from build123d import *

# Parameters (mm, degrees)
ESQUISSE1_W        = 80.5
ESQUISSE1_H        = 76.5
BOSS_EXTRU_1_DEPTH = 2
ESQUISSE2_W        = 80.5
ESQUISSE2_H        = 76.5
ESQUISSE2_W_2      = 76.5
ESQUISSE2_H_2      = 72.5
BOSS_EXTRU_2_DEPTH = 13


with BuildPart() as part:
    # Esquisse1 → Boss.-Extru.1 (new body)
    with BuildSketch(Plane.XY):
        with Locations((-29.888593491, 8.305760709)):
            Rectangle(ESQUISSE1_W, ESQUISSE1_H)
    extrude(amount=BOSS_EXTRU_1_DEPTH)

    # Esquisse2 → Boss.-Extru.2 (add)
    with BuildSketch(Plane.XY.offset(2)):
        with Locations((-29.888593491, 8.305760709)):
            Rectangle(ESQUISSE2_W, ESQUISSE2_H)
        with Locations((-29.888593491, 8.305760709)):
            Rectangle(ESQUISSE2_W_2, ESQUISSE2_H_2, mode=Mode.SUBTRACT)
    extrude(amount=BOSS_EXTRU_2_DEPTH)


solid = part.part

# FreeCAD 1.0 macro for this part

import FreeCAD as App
import Part
import Sketcher
from FreeCAD import Vector
Q = App.Units.Quantity


def add_polygon(sketch, points):
    """Adds a closed chain of lines whose ends are joined by coincident constraints."""
    first, n = sketch.GeometryCount, len(points)
    for a, b in zip(points, points[1:] + points[:1]):
        sketch.addGeometry(Part.LineSegment(App.Vector(*a, 0), App.Vector(*b, 0)), False)
    for i in range(n):
        sketch.addConstraint(Sketcher.Constraint("Coincident", first + i, 2, first + (i + 1) % n, 1))

doc = App.newDocument("Part")
body = doc.addObject("PartDesign::Body", "Body")

# Sketch on XY plane
sketch1 = body.newObject("Sketcher::SketchObject", "Sketch")
sketch1.AttachmentSupport = (doc.getObject("XY_Plane"), [""])
sketch1.MapMode = "FlatFace"
add_polygon(sketch1, [(-70, 47), (-70, -30), (10, -30), (10, 47)])  # lines 0-3
sketch1.addConstraint(Sketcher.Constraint("Vertical", 0))
sketch1.addConstraint(Sketcher.Constraint("Horizontal", 1))
sketch1.addConstraint(Sketcher.Constraint("Vertical", 2))
sketch1.addConstraint(Sketcher.Constraint("Horizontal", 3))
sketch1.addConstraint(Sketcher.Constraint("DistanceX", 1, 1, 1, 2, Q("80.5 mm")))
sketch1.addConstraint(Sketcher.Constraint("DistanceY", 0, 2, 0, 1, Q("76.5 mm")))
sketch1.addConstraint(Sketcher.Constraint("DistanceY", 0, 2, -1, 1, Q("29.944239 mm")))
sketch1.addConstraint(Sketcher.Constraint("DistanceX", 0, 2, -1, 1, Q("70.138593 mm")))
pad1 = body.newObject("PartDesign::Pad", "Pad")
pad1.Profile = sketch1
pad1.Length = 2

# Sketch on XY plane
sketch2 = body.newObject("Sketcher::SketchObject", "Sketch001")
sketch2.AttachmentSupport = (doc.getObject("XY_Plane"), [""])
sketch2.MapMode = "FlatFace"
sketch2.AttachmentOffset = App.Placement(Vector(0, 0, 2), App.Rotation())
add_polygon(sketch2, [(-70, 47), (-70, -30), (10, -30), (10, 47)])  # lines 0-3
add_polygon(sketch2, [(8, -28), (-68, -28), (-68, 45), (8, 45)])  # lines 4-7
sketch2.addConstraint(Sketcher.Constraint("Vertical", 0))
sketch2.addConstraint(Sketcher.Constraint("Horizontal", 1))
sketch2.addConstraint(Sketcher.Constraint("Vertical", 2))
sketch2.addConstraint(Sketcher.Constraint("Horizontal", 3))
sketch2.addConstraint(Sketcher.Constraint("Horizontal", 4))
sketch2.addConstraint(Sketcher.Constraint("Vertical", 5))
sketch2.addConstraint(Sketcher.Constraint("Horizontal", 6))
sketch2.addConstraint(Sketcher.Constraint("Vertical", 7))
sketch2.addConstraint(Sketcher.Constraint("Equal", 6, 0))
sketch2.addConstraint(Sketcher.Constraint("DistanceX", 1, 1, 1, 2, Q("80.5 mm")))
sketch2.addConstraint(Sketcher.Constraint("DistanceX", 4, 2, 4, 1, Q("76.5 mm")))
sketch2.addConstraint(Sketcher.Constraint("DistanceY", 5, 1, 5, 2, Q("72.5 mm")))
sketch2.addConstraint(Sketcher.Constraint("DistanceX", 0, 2, 4, 2, Q("2 mm")))
sketch2.addConstraint(Sketcher.Constraint("DistanceY", 0, 2, 4, 2, Q("2 mm")))
sketch2.addConstraint(Sketcher.Constraint("DistanceY", 0, 2, -1, 1, Q("29.944239 mm")))
sketch2.addConstraint(Sketcher.Constraint("DistanceX", 0, 2, -1, 1, Q("70.138593 mm")))
pad2 = body.newObject("PartDesign::Pad", "Pad001")
pad2.Profile = sketch2
pad2.Length = 13

doc.recompute()
